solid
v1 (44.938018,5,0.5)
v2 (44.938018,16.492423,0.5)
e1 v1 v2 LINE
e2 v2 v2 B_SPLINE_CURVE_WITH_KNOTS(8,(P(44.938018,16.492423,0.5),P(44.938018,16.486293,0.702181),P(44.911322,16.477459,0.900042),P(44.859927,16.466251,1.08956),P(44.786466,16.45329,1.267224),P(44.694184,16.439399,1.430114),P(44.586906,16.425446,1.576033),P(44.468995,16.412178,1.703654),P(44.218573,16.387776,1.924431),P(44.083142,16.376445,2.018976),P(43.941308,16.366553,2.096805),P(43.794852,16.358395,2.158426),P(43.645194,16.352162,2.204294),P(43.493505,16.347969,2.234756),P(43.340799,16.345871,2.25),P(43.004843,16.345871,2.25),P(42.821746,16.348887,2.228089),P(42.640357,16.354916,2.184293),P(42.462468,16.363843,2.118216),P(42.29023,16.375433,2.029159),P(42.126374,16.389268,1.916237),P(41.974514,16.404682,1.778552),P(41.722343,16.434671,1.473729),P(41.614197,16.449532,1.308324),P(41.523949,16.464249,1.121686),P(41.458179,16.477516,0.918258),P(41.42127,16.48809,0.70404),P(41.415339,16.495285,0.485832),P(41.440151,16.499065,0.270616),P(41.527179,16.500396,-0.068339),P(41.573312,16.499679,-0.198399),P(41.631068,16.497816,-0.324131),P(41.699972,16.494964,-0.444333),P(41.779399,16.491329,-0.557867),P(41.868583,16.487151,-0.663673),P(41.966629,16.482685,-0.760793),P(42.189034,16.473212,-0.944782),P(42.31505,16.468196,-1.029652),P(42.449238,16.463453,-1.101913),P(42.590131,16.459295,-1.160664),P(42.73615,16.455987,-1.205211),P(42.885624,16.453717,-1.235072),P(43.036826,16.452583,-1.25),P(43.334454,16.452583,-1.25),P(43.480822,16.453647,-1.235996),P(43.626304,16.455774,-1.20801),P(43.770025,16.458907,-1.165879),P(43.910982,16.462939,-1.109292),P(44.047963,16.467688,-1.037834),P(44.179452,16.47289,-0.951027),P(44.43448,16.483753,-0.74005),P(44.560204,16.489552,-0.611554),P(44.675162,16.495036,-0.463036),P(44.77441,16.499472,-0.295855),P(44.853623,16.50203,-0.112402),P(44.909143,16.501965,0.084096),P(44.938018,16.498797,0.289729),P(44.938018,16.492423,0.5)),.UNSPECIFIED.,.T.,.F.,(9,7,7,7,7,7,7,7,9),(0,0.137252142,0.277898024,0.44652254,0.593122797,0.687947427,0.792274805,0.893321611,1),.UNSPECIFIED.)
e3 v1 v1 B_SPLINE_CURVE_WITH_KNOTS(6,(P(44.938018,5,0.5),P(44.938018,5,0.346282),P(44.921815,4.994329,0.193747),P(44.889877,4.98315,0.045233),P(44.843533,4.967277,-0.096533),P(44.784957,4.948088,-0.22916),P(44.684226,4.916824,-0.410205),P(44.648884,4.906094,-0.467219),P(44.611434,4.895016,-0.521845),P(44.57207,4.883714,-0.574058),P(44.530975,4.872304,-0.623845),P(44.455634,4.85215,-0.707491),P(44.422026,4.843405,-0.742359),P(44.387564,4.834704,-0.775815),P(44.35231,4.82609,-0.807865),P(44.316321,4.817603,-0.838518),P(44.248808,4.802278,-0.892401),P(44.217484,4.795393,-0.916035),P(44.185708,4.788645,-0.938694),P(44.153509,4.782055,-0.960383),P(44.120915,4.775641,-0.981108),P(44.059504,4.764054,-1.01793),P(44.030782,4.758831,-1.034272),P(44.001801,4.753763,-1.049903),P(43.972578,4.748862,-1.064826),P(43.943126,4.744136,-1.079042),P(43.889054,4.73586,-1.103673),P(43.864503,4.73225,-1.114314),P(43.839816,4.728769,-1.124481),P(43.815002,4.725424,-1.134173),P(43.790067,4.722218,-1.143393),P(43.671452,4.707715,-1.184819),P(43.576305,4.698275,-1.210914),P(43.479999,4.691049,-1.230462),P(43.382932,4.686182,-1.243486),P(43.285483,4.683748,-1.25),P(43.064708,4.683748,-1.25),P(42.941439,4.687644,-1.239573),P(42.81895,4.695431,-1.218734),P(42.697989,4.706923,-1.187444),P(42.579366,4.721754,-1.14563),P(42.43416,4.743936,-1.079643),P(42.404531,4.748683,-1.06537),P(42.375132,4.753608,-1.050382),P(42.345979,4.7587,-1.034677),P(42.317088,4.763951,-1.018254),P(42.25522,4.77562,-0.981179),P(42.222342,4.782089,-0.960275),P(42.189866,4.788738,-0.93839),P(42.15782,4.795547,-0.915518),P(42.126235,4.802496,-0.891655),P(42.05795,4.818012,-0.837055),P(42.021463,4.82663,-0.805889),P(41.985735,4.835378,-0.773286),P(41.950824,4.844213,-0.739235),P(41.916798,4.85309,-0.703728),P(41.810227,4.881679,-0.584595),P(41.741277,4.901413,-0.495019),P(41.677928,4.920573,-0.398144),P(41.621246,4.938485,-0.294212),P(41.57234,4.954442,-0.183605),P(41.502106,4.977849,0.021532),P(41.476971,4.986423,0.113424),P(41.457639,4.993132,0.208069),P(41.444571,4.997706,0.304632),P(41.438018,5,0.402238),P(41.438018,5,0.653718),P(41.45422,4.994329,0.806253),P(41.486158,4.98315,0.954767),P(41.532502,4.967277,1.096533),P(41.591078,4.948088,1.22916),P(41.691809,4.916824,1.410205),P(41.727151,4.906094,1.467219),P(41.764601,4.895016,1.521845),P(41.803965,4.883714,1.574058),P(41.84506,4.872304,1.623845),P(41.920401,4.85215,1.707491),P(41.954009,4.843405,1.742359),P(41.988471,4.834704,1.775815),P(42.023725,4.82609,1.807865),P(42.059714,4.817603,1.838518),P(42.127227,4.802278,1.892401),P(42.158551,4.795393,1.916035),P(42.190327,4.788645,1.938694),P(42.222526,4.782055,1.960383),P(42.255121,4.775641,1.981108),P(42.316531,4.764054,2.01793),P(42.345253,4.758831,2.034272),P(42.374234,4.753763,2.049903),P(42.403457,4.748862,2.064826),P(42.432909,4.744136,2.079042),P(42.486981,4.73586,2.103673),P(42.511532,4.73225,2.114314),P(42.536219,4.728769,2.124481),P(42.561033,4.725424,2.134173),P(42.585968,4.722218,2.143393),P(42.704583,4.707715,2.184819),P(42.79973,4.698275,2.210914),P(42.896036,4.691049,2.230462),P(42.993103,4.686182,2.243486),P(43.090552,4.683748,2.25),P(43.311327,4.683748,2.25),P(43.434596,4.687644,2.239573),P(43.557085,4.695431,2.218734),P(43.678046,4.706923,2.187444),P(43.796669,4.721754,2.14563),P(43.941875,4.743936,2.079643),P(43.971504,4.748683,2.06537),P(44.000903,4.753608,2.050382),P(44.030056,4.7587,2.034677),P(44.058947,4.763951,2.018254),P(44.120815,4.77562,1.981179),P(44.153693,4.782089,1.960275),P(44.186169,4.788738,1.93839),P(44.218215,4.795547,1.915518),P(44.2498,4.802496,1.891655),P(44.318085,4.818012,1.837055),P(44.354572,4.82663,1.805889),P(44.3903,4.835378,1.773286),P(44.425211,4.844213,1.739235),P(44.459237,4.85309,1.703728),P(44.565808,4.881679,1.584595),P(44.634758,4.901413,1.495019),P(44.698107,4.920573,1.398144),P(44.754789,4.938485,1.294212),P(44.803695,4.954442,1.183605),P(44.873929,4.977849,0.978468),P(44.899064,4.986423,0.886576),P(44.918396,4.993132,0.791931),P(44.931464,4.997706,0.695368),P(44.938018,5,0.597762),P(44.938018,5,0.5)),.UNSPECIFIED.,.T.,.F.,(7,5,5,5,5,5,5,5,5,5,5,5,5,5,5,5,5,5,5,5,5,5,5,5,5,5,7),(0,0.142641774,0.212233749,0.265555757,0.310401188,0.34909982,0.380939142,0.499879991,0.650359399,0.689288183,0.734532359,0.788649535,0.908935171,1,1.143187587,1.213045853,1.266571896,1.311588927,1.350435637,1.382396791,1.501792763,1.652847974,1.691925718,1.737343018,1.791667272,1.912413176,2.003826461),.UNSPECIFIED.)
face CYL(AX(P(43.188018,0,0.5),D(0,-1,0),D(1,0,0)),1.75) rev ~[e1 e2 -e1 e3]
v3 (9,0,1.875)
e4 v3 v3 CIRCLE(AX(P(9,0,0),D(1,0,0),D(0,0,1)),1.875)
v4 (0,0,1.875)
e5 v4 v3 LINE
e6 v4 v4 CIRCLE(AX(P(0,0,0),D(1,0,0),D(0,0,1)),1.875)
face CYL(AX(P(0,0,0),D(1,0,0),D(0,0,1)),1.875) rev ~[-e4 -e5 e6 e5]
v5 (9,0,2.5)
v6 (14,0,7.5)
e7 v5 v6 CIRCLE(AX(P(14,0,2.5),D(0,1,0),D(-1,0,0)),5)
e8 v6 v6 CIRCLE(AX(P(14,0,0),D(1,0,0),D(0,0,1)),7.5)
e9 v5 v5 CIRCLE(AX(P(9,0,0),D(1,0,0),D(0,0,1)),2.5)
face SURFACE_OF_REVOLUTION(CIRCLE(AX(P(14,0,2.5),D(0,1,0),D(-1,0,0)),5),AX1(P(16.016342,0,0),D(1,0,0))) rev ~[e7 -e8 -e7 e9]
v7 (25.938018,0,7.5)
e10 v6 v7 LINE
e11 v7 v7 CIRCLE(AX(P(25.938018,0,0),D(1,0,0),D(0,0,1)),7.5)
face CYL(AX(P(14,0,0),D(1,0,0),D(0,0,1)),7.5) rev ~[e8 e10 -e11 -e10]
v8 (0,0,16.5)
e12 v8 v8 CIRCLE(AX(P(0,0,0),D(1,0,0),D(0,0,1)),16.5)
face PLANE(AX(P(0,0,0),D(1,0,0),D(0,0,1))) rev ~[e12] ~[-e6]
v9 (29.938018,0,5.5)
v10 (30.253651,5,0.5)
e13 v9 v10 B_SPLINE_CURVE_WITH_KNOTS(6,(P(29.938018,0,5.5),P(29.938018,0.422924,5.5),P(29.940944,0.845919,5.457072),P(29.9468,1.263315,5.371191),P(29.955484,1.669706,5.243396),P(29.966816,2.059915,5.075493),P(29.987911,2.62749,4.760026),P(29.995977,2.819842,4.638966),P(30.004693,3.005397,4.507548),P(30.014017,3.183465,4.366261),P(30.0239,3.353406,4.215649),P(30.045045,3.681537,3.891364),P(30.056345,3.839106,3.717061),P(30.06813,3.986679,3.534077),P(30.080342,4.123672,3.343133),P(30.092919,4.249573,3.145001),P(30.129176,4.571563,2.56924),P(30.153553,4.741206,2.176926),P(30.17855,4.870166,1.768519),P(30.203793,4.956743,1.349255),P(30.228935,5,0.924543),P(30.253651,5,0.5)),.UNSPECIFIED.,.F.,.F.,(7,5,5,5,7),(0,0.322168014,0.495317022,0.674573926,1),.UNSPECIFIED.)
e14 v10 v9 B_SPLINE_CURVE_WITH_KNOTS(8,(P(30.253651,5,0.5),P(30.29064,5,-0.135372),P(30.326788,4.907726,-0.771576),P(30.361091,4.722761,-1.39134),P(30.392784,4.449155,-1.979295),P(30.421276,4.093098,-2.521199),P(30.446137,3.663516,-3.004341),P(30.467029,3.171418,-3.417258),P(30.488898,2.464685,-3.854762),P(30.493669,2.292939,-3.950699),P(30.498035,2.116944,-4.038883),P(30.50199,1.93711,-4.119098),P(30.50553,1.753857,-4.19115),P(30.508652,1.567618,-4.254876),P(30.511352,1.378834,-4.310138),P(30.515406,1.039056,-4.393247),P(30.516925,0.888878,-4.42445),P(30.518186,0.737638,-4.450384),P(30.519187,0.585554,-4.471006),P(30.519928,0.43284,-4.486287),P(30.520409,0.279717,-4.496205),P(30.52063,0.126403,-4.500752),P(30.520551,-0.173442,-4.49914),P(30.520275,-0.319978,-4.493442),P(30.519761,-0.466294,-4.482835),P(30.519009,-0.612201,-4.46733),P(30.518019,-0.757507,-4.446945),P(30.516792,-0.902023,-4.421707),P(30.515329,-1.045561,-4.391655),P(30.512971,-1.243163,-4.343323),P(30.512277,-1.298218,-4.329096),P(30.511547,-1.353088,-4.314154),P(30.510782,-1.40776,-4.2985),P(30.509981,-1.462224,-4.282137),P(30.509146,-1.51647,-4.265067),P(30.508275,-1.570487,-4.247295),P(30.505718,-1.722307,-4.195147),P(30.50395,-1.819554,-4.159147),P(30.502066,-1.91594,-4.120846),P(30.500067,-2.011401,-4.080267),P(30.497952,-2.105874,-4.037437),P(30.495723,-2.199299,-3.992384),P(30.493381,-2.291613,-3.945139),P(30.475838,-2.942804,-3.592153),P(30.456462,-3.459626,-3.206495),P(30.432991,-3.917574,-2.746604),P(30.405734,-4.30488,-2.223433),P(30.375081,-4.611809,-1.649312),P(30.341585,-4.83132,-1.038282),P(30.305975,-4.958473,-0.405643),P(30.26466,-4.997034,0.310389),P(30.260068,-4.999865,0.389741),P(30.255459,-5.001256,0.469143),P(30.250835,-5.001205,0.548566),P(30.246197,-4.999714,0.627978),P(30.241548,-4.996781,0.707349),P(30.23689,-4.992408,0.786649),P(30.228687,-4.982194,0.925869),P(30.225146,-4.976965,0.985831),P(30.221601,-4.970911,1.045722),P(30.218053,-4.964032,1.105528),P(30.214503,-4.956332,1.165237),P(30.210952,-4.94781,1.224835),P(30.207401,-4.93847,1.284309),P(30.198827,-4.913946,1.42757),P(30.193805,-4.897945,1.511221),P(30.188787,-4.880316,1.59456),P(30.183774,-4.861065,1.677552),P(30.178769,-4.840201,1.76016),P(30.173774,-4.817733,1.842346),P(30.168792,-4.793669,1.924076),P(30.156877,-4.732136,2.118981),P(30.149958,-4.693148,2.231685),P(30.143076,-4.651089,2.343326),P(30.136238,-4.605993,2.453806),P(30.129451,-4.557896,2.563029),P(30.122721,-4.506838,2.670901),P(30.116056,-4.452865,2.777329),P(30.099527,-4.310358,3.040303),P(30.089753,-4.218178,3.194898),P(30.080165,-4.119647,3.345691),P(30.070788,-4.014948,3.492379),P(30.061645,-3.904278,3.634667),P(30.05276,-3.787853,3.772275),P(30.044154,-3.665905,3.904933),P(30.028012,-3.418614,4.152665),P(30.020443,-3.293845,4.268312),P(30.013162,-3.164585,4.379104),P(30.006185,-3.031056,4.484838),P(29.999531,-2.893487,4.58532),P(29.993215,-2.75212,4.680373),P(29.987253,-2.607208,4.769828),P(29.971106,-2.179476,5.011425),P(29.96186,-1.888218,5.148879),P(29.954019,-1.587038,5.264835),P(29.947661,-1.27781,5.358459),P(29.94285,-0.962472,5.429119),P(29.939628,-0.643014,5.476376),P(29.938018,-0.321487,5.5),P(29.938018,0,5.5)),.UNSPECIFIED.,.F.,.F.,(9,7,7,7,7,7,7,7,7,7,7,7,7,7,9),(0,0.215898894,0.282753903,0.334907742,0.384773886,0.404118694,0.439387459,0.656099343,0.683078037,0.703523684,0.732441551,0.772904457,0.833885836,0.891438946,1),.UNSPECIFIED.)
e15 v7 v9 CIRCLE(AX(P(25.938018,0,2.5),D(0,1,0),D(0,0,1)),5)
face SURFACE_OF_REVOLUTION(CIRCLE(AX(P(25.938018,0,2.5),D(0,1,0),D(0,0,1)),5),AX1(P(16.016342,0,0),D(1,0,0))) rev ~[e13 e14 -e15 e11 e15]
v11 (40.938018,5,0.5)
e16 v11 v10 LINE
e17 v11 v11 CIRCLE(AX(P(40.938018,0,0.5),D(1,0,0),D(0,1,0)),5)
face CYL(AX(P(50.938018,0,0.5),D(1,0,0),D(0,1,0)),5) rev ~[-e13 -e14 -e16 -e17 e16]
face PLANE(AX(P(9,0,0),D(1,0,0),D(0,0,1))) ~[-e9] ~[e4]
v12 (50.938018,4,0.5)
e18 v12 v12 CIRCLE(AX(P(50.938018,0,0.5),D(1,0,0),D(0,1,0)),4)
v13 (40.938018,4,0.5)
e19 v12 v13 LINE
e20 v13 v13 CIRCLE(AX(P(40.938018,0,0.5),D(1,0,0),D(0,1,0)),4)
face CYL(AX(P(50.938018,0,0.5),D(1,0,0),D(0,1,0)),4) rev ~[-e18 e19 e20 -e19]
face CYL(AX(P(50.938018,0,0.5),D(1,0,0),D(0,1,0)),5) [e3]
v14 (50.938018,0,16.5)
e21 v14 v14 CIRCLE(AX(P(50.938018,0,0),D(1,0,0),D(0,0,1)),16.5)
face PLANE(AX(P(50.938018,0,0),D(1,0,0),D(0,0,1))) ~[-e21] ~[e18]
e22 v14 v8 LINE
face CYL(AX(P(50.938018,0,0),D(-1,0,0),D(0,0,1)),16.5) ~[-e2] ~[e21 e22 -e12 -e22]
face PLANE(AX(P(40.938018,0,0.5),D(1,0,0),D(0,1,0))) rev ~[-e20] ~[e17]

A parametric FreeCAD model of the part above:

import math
import FreeCAD as App
import Part
import Sketcher

V = App.Vector

doc = App.newDocument("Part")
body = doc.addObject("PartDesign::Body", "Body")

sketch1 = body.newObject("Sketcher::SketchObject", "Sketch")
sketch1.AttachmentSupport = (doc.getObject("XZ_Plane"), [""])
sketch1.MapMode = "FlatFace"
sketch1.addGeometry([
    Part.LineSegment(V(30.9, 2.5, 0), V(30.9, 0, 0)),
    Part.LineSegment(V(30.9, 0, 0), V(50.9, 0, 0)),
    Part.LineSegment(V(50.9, 0, 0), V(50.9, 16.5, 0)),
    Part.LineSegment(V(50.9, 16.5, 0), V(0, 16.5, 0)),
    Part.LineSegment(V(0, 16.5, 0), V(0, 1.9, 0)),
    Part.LineSegment(V(0, 1.9, 0), V(9, 1.9, 0)),
    Part.LineSegment(V(9, 1.9, 0), V(9, 2.5, 0)),
    Part.ArcOfCircle(Part.Circle(V(14, 2.5, 0), V(0, 0, 1), 5), math.radians(90), math.radians(180)),
    Part.LineSegment(V(14, 7.5, 0), V(25.9, 7.5, 0)),
    Part.ArcOfCircle(Part.Circle(V(25.9, 2.5, 0), V(0, 0, 1), 5), math.radians(0), math.radians(90)),
], False)
sketch1.addConstraint([
    Sketcher.Constraint("Coincident", 0, 2, 1, 1),
    Sketcher.Constraint("Coincident", 1, 2, 2, 1),
    Sketcher.Constraint("Coincident", 2, 2, 3, 1),
    Sketcher.Constraint("Coincident", 3, 2, 4, 1),
    Sketcher.Constraint("Coincident", 4, 2, 5, 1),
    Sketcher.Constraint("Coincident", 5, 2, 6, 1),
    Sketcher.Constraint("Tangent", 6, 2, 7, 2),
    Sketcher.Constraint("Tangent", 7, 1, 8, 1),
    Sketcher.Constraint("Tangent", 8, 2, 9, 2),
    Sketcher.Constraint("Tangent", 9, 1, 0, 1),
    Sketcher.Constraint("Vertical", 0),
    Sketcher.Constraint("Horizontal", 1),
    Sketcher.Constraint("Vertical", 2),
    Sketcher.Constraint("Horizontal", 3),
    Sketcher.Constraint("Vertical", 4),
    Sketcher.Constraint("Horizontal", 5),
    Sketcher.Constraint("Vertical", 6),
    Sketcher.Constraint("Horizontal", 8),
    Sketcher.Constraint("Equal", 7, 9),
    Sketcher.Constraint("PointOnObject", 0, 2, -1),
    Sketcher.Constraint("PointOnObject", 3, 2, -2),
    Sketcher.Constraint("Radius", 7, 5.0),
    Sketcher.Constraint("DistanceX", 1, 1, 1, 2, 20.0),
    Sketcher.Constraint("DistanceX", 5, 1, 5, 2, 9.0),
    Sketcher.Constraint("DistanceY", 0, 2, 0, 1, 2.5),
    Sketcher.Constraint("DistanceY", 2, 1, 2, 2, 16.5),
    Sketcher.Constraint("DistanceY", 4, 2, 4, 1, 14.625),
    Sketcher.Constraint("DistanceX", 3, 2, 3, 1, 50.938018),
])
revolution = body.newObject("PartDesign::Revolution", "Revolution")
revolution.Profile = sketch1
revolution.ReferenceAxis = (sketch1, ["H_Axis"])
revolution.Angle = 360

sketch2 = body.newObject("Sketcher::SketchObject", "Sketch001")
sketch2.AttachmentSupport = (doc.getObject("YZ_Plane"), [""])
sketch2.MapMode = "FlatFace"
sketch2.AttachmentOffset = App.Placement(V(0, 0, 50.938018), App.Rotation())
sketch2.addGeometry(Part.Circle(V(0, 0.5, 0), V(0, 0, 1), 4), False)
sketch2.addConstraint([
    Sketcher.Constraint("PointOnObject", 0, 3, -2),
    Sketcher.Constraint("Diameter", 0, 8.0),
    Sketcher.Constraint("DistanceY", -1, 1, 0, 3, 0.5),
])
pocket1 = body.newObject("PartDesign::Pocket", "Pocket")
pocket1.Profile = sketch2
pocket1.Length = 20.418424

sketch3 = body.newObject("Sketcher::SketchObject", "Sketch002")
sketch3.AttachmentSupport = (doc.getObject("XZ_Plane"), [""])
sketch3.MapMode = "FlatFace"
sketch3.addGeometry(Part.Circle(V(43.2, 0.5, 0), V(0, 0, 1), 1.8), False)
sketch3.addConstraint([
    Sketcher.Constraint("Diameter", 0, 3.5),
    Sketcher.Constraint("DistanceY", -1, 1, 0, 3, 0.5),
    Sketcher.Constraint("DistanceX", -1, 1, 0, 3, 43.188018),
])
pocket2 = body.newObject("PartDesign::Pocket", "Pocket001")
pocket2.Profile = sketch3
pocket2.Length = 25

sketch4 = body.newObject("Sketcher::SketchObject", "Sketch003")
sketch4.AttachmentSupport = (doc.getObject("YZ_Plane"), [""])
sketch4.MapMode = "FlatFace"
sketch4.AttachmentOffset = App.Placement(V(0, 0, 50.938018), App.Rotation())
sketch4.addGeometry([
    Part.Circle(V(0, 0.5, 0), V(0, 0, 1), 5),
    Part.Circle(V(0, 0.5, 0), V(0, 0, 1), 4),
], False)
sketch4.addConstraint([
    Sketcher.Constraint("Coincident", 1, 3, 0, 3),
    Sketcher.Constraint("PointOnObject", 0, 3, -2),
    Sketcher.Constraint("Diameter", 0, 10.0),
    Sketcher.Constraint("Diameter", 1, 8.0),
    Sketcher.Constraint("DistanceY", -1, 1, 0, 3, 0.5),
])
pocket3 = body.newObject("PartDesign::Pocket", "Pocket002")
pocket3.Profile = sketch4
pocket3.Length = 25

sketch5 = body.newObject("Sketcher::SketchObject", "Sketch004")
sketch5.AttachmentSupport = (doc.getObject("YZ_Plane"), [""])
sketch5.MapMode = "FlatFace"
sketch5.AttachmentOffset = App.Placement(V(0, 0, 50.938018), App.Rotation())
sketch5.addGeometry([
    Part.Circle(V(0, 0.5, 0), V(0, 0, 1), 5),
    Part.Circle(V(0, 0.5, 0), V(0, 0, 1), 4),
], False)
sketch5.addConstraint([
    Sketcher.Constraint("Coincident", 1, 3, 0, 3),
    Sketcher.Constraint("PointOnObject", 0, 3, -2),
    Sketcher.Constraint("Diameter", 0, 10.0),
    Sketcher.Constraint("Diameter", 1, 8.0),
    Sketcher.Constraint("DistanceY", -1, 1, 0, 3, 0.5),
])
pad1 = body.newObject("PartDesign::Pad", "Pad")
pad1.Profile = sketch5
pad1.Length = 10
pad1.Reversed = True

doc.recompute()
